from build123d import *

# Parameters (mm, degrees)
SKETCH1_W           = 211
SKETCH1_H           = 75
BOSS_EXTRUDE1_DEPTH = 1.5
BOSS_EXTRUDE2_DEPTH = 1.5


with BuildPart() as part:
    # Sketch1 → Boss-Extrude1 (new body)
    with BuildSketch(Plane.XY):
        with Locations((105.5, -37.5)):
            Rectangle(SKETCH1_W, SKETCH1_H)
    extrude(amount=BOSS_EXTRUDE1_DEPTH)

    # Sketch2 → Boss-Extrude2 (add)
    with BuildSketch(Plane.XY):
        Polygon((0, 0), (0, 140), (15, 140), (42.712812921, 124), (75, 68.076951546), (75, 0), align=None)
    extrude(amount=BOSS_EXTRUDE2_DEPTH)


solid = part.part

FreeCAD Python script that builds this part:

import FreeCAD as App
import Part
import Sketcher
Q = App.Units.Quantity


def add_polygon(sketch, points):
    """Adds a closed chain of lines whose ends are joined by coincident constraints."""
    first, n = sketch.GeometryCount, len(points)
    for a, b in zip(points, points[1:] + points[:1]):
        sketch.addGeometry(Part.LineSegment(App.Vector(*a, 0), App.Vector(*b, 0)), False)
    for i in range(n):
        sketch.addConstraint(Sketcher.Constraint("Coincident", first + i, 2, first + (i + 1) % n, 1))

doc = App.newDocument("Part")
body = doc.addObject("PartDesign::Body", "Body")

sketch1 = body.newObject("Sketcher::SketchObject", "Sketch")
sketch1.AttachmentSupport = (doc.getObject("XY_Plane"), [""])
sketch1.MapMode = "FlatFace"
add_polygon(sketch1, [(0, 0), (0, -75), (211, -75), (211, 0)])
sketch1.addConstraint([
    Sketcher.Constraint("Vertical", 0),
    Sketcher.Constraint("Horizontal", 1),
    Sketcher.Constraint("Vertical", 2),
    Sketcher.Constraint("Horizontal", 3),
    Sketcher.Constraint("Coincident", 3, 2, -1, 1),
    Sketcher.Constraint("DistanceX", 1, 1, 1, 2, Q("211 mm")),
    Sketcher.Constraint("DistanceY", 0, 2, 0, 1, Q("75 mm")),
])
pad1 = body.newObject("PartDesign::Pad", "Pad")
pad1.Profile = sketch1
pad1.Length = 1.5

sketch2 = body.newObject("Sketcher::SketchObject", "Sketch001")
sketch2.AttachmentSupport = (doc.getObject("XY_Plane"), [""])
sketch2.MapMode = "FlatFace"
add_polygon(sketch2, [(0, 140), (0, 0), (75, 0), (75, 68.076952), (42.712813, 124), (15, 140)])
sketch2.addConstraint([
    Sketcher.Constraint("Vertical", 0),
    Sketcher.Constraint("Horizontal", 1),
    Sketcher.Constraint("Vertical", 2),
    Sketcher.Constraint("Horizontal", 5),
    Sketcher.Constraint("Coincident", 0, 2, -1, 1),
    Sketcher.Constraint("DistanceX", 1, 1, 1, 2, Q("75 mm")),
    Sketcher.Constraint("DistanceX", 5, 2, 5, 1, Q("15 mm")),
    Sketcher.Constraint("DistanceY", 0, 2, 0, 1, Q("140 mm")),
    Sketcher.Constraint("Angle", 3, Q("120 deg")),
    Sketcher.Constraint("Angle", 4, Q("150 deg")),
    Sketcher.Constraint("Distance", 4, Q("32 mm")),
])
pad2 = body.newObject("PartDesign::Pad", "Pad001")
pad2.Profile = sketch2
pad2.Length = 1.5

doc.recompute()
